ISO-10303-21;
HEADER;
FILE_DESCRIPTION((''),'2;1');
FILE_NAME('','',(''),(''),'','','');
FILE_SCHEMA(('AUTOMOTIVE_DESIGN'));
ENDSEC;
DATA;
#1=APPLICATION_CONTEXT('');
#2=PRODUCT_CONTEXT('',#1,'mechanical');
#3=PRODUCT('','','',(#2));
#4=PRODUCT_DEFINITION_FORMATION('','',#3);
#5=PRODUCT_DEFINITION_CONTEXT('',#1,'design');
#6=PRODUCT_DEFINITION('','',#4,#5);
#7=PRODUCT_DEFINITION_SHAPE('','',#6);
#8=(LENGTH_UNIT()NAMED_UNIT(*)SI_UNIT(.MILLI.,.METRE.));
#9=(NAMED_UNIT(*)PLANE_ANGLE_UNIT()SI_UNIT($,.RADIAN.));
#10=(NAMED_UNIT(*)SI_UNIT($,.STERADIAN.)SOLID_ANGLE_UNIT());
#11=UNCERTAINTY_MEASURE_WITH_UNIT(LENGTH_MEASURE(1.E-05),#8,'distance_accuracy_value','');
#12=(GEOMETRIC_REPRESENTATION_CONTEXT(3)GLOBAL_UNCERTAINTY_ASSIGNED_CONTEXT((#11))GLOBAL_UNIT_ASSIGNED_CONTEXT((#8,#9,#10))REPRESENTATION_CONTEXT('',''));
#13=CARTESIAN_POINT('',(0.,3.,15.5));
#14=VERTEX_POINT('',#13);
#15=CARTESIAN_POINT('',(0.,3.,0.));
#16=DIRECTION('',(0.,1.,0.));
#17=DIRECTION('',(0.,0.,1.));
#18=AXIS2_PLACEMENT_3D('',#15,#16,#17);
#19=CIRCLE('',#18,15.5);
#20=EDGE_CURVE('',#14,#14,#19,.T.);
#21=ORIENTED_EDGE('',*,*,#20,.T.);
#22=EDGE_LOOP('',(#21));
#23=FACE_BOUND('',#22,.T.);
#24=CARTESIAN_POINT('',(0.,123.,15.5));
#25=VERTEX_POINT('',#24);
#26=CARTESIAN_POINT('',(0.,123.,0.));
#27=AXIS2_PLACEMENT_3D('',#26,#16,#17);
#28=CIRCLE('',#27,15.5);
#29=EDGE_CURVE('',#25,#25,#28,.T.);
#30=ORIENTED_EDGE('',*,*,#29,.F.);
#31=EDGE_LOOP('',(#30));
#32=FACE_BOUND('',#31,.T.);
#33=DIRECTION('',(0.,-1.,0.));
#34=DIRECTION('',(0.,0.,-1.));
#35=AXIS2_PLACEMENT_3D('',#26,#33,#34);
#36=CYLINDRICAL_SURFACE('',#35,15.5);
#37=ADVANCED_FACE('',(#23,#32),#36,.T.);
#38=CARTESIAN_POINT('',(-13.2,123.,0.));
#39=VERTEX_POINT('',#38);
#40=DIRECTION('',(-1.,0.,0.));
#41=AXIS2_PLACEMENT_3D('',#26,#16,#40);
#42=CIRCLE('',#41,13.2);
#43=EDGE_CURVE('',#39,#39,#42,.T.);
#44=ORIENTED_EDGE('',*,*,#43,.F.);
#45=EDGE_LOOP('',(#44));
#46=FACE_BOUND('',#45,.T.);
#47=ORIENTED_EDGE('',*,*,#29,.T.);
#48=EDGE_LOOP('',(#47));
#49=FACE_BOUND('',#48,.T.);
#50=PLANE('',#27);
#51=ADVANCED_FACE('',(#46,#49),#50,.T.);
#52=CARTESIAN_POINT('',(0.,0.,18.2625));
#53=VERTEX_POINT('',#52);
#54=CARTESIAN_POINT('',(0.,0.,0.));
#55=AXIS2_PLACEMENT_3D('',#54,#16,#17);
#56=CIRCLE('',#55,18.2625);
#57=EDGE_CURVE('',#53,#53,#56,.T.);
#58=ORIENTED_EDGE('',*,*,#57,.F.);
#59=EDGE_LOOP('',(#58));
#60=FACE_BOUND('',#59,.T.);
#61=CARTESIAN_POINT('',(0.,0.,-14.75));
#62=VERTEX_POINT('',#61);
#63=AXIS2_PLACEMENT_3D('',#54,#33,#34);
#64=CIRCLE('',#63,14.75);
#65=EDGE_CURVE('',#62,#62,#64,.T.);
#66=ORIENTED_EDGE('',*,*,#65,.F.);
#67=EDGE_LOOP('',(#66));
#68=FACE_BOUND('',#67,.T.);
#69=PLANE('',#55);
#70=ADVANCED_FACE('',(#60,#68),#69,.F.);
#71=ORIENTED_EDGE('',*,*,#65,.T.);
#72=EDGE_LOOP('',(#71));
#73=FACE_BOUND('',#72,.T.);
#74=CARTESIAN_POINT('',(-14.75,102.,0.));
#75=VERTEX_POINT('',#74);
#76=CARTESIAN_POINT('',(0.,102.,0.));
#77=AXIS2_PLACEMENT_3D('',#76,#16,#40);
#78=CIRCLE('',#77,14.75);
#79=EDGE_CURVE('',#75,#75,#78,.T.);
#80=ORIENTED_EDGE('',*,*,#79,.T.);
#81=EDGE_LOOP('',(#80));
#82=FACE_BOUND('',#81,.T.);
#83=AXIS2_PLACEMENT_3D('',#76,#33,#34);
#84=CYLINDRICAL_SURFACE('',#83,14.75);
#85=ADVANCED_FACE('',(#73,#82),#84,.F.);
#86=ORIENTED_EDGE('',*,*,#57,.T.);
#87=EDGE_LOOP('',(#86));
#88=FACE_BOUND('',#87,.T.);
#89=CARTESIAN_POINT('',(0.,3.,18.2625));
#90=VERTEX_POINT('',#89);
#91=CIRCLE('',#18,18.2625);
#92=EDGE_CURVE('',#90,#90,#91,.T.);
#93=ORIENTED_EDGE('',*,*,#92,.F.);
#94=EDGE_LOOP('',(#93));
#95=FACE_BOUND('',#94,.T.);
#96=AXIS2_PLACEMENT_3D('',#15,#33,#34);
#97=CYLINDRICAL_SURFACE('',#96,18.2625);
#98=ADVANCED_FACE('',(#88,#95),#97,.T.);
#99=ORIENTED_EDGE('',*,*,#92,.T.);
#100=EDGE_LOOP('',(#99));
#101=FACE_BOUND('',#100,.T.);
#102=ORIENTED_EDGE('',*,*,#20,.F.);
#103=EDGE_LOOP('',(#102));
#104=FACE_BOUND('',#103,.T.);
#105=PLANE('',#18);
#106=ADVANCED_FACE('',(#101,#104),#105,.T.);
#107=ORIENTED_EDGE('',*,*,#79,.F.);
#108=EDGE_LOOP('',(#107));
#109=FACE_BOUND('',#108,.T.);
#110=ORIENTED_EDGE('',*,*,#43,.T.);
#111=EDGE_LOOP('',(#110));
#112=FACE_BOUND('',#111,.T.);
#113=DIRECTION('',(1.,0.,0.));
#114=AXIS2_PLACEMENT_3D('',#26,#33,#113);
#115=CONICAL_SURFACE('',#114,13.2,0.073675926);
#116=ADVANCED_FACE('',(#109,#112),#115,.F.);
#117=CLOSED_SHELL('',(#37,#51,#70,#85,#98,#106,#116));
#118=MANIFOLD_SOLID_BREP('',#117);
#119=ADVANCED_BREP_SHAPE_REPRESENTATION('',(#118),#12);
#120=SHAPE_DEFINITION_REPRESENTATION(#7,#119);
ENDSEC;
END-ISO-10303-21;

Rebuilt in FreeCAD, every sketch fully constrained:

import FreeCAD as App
import Part
import Sketcher
from FreeCAD import Vector

doc = App.newDocument("Part")
body = doc.addObject("PartDesign::Body", "Body")

sketch1 = body.newObject("Sketcher::SketchObject", "Sketch")
sketch1.AttachmentSupport = (doc.getObject("XZ_Plane"), [""])
sketch1.MapMode = "FlatFace"
sketch1.addGeometry(Part.Circle(Vector(0, 0, 0), Vector(0, 0, 1), 18.2625), False)
sketch1.addConstraint(Sketcher.Constraint("Coincident", 0, 3, -1, 1))
sketch1.addConstraint(Sketcher.Constraint("Diameter", 0, 36.525))
pad1 = body.newObject("PartDesign::Pad", "Pad")
pad1.Profile = sketch1
pad1.Length = 3
pad1.Reversed = True

sketch2 = body.newObject("Sketcher::SketchObject", "Sketch001")
sketch2.AttachmentSupport = (doc.getObject("XZ_Plane"), [""])
sketch2.MapMode = "FlatFace"
sketch2.AttachmentOffset = App.Placement(Vector(0, 0, -3), App.Rotation())
sketch2.addGeometry(Part.Circle(Vector(0, 0, 0), Vector(0, 0, 1), 15.5), False)
sketch2.addConstraint(Sketcher.Constraint("Coincident", 0, 3, -1, 1))
sketch2.addConstraint(Sketcher.Constraint("Diameter", 0, 31.0))
pad2 = body.newObject("PartDesign::Pad", "Pad001")
pad2.Profile = sketch2
pad2.Length = 120
pad2.Reversed = True

sketch3 = body.newObject("Sketcher::SketchObject", "Sketch002")
sketch3.AttachmentSupport = (doc.getObject("XZ_Plane"), [""])
sketch3.MapMode = "FlatFace"
sketch3.addGeometry(Part.Circle(Vector(0, 0, 0), Vector(0, 0, 1), 14.75), False)
sketch3.addConstraint(Sketcher.Constraint("Coincident", 0, 3, -1, 1))
sketch3.addConstraint(Sketcher.Constraint("Diameter", 0, 29.5))
pocket1 = body.newObject("PartDesign::Pocket", "Pocket")
pocket1.Profile = sketch3
pocket1.Length = 102

sketch4 = body.newObject("Sketcher::SketchObject", "Sketch003")
sketch4.AttachmentSupport = (doc.getObject("XY_Plane"), [""])
sketch4.MapMode = "FlatFace"
sketch4.addGeometry(Part.LineSegment(Vector(-14.75, 102, 0), Vector(0, 102, 0)), False)
sketch4.addGeometry(Part.LineSegment(Vector(0, 102, 0), Vector(0, 123, 0)), False)
sketch4.addGeometry(Part.LineSegment(Vector(0, 123, 0), Vector(-13.2, 123, 0)), False)
sketch4.addGeometry(Part.LineSegment(Vector(-13.2, 123, 0), Vector(-14.75, 102, 0)), False)
sketch4.addConstraint(Sketcher.Constraint("Coincident", 0, 2, 1, 1))
sketch4.addConstraint(Sketcher.Constraint("Coincident", 1, 2, 2, 1))
sketch4.addConstraint(Sketcher.Constraint("Coincident", 2, 2, 3, 1))
sketch4.addConstraint(Sketcher.Constraint("Coincident", 3, 2, 0, 1))
sketch4.addConstraint(Sketcher.Constraint("Horizontal", 0))
sketch4.addConstraint(Sketcher.Constraint("Vertical", 1))
sketch4.addConstraint(Sketcher.Constraint("Horizontal", 2))
sketch4.addConstraint(Sketcher.Constraint("PointOnObject", 0, 2, -2))
sketch4.addConstraint(Sketcher.Constraint("DistanceY", 1, 1, 1, 2, 21.0))
sketch4.addConstraint(Sketcher.Constraint("DistanceX", 2, 2, 2, 1, 13.2))
sketch4.addConstraint(Sketcher.Constraint("DistanceY", -1, 1, 0, 2, 102.0))
sketch4.addConstraint(Sketcher.Constraint("DistanceX", 0, 1, 0, 2, 14.75))
groove = body.newObject("PartDesign::Groove", "Groove")
groove.Profile = sketch4
groove.ReferenceAxis = (sketch4, ["V_Axis"])
groove.Angle = 360

doc.recompute()
